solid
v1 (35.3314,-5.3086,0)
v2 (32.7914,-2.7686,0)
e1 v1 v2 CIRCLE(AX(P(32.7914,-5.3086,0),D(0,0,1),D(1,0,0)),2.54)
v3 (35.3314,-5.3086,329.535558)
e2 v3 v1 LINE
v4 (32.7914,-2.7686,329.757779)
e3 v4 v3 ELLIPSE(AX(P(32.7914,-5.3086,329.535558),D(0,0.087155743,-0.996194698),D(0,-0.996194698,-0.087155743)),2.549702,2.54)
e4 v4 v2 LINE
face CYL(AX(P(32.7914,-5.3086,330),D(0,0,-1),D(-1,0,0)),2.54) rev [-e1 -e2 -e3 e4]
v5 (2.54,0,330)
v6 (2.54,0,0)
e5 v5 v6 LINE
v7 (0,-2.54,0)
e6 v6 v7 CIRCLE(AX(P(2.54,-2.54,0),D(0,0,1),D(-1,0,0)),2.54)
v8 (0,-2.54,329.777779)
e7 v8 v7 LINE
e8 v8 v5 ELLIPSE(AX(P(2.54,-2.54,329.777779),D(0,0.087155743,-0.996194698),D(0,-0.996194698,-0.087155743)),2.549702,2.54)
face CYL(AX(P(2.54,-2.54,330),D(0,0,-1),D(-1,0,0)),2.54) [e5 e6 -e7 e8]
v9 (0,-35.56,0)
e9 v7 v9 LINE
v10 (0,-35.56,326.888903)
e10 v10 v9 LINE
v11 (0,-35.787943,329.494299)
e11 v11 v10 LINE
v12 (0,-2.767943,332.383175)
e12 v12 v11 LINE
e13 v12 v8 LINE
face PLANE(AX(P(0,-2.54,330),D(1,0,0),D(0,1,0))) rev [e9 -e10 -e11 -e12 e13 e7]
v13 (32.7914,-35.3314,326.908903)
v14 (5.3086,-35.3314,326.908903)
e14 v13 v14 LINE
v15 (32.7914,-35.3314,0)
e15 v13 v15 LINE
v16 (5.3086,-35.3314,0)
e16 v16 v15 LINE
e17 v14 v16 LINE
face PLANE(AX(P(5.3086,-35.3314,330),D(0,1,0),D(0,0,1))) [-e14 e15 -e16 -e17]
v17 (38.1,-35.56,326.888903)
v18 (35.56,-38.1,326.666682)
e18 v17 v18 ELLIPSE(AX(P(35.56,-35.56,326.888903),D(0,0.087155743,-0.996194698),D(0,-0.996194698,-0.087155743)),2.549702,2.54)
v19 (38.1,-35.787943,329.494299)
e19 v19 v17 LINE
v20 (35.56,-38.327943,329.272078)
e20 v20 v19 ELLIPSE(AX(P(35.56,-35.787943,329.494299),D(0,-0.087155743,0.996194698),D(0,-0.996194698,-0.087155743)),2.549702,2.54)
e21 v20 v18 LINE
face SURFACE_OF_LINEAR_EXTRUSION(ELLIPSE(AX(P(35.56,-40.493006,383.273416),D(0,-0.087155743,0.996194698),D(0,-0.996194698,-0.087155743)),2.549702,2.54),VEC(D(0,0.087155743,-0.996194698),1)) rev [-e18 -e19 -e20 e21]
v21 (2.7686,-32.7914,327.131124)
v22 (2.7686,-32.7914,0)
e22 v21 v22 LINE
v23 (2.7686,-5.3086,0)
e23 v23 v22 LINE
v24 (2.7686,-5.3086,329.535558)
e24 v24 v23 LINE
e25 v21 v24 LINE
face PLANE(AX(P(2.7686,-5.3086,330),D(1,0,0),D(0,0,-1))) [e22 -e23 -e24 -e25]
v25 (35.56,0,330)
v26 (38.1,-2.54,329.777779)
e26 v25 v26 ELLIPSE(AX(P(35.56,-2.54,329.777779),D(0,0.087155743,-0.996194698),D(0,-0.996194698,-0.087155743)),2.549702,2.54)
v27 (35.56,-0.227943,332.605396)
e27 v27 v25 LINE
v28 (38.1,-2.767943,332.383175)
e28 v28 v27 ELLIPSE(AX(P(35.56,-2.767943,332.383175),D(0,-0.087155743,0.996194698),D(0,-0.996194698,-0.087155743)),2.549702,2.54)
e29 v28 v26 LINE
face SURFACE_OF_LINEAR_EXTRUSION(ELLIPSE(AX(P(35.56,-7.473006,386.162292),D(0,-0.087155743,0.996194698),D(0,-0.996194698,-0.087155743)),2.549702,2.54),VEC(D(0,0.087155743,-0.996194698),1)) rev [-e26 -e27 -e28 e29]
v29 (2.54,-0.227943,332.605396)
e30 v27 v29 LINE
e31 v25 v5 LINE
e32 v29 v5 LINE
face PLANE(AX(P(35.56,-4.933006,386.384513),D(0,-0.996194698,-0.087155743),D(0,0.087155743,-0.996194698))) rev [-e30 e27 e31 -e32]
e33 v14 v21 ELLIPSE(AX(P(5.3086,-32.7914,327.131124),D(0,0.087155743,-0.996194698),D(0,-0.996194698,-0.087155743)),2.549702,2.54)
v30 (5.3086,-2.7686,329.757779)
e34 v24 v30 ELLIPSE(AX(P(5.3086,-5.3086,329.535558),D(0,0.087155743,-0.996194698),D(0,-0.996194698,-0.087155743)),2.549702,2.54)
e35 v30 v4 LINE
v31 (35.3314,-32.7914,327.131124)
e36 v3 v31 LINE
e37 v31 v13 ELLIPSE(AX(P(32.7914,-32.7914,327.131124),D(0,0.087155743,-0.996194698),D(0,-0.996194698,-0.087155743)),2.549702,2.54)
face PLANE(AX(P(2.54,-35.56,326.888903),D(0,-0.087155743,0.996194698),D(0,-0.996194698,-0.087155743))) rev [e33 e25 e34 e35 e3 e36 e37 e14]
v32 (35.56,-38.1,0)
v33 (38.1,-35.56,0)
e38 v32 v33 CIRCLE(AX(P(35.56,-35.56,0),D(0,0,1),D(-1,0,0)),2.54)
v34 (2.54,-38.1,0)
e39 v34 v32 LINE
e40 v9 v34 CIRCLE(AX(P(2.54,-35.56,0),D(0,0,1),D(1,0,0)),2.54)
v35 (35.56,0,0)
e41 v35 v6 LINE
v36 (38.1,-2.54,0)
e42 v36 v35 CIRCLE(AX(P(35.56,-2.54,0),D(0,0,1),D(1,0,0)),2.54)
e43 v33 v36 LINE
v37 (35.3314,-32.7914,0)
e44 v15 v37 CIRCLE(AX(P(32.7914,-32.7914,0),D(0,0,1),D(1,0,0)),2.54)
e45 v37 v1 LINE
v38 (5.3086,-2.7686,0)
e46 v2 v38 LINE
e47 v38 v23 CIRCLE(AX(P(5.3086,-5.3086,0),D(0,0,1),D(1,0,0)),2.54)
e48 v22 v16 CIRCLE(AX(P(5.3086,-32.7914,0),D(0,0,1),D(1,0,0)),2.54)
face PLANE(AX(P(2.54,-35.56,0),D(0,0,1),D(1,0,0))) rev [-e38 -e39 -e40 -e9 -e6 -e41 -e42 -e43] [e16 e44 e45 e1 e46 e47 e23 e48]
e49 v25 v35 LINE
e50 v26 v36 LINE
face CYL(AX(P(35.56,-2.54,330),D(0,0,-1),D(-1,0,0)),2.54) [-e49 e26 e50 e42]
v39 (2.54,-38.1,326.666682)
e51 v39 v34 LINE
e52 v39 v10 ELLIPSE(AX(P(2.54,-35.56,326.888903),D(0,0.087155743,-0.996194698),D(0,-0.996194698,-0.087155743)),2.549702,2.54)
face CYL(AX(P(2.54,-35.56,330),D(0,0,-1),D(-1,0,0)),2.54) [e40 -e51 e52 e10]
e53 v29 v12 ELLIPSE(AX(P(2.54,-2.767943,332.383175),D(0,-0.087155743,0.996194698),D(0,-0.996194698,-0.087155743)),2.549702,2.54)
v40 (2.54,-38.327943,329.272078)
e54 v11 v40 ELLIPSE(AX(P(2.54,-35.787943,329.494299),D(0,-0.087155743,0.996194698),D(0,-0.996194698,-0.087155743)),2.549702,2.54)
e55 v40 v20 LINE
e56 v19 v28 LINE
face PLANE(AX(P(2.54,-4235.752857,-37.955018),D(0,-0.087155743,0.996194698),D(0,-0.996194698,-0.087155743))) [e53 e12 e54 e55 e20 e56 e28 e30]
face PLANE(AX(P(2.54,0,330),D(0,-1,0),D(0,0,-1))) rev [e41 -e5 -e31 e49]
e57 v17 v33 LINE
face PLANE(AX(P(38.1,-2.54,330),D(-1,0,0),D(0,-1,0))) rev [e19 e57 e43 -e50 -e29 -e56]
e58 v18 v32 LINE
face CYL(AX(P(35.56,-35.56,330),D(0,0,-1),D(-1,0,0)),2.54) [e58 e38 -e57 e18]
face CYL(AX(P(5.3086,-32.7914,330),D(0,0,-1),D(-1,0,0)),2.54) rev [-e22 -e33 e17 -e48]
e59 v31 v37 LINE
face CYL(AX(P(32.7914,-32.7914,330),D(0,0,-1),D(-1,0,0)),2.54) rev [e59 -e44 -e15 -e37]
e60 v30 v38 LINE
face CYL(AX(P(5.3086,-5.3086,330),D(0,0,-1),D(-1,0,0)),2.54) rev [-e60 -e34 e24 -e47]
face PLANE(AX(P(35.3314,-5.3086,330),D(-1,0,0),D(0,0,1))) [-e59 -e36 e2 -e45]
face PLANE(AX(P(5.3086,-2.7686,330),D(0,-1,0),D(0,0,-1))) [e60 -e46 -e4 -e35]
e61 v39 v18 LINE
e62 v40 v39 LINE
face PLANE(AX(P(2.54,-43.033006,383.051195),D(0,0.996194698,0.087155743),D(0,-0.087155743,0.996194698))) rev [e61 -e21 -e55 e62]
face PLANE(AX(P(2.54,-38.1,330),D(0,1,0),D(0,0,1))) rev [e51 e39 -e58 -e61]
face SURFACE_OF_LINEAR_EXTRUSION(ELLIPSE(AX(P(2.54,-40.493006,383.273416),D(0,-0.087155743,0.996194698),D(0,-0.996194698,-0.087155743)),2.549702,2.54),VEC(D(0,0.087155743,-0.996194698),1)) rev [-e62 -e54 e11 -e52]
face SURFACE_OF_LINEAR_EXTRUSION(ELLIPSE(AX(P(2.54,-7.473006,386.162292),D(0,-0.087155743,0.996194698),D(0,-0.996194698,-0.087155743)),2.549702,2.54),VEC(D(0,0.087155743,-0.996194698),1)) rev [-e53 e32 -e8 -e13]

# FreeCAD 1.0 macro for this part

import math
import FreeCAD as App
import Part
import Sketcher
Q = App.Units.Quantity

doc = App.newDocument("Part")
body = doc.addObject("PartDesign::Body", "Body")

sketch1 = body.newObject("Sketcher::SketchObject", "Sketch")
sketch1.AttachmentSupport = (doc.getObject("XY_Plane"), [""])
sketch1.MapMode = "FlatFace"
sketch1.addGeometry([
    Part.LineSegment(App.Vector(35.56, 0, 0), App.Vector(2.54, 0, 0)),
    Part.ArcOfCircle(Part.Circle(App.Vector(2.54, -2.54, 0), App.Vector(0, 0, 1), 2.54), math.radians(90), math.radians(180)),
    Part.LineSegment(App.Vector(0, -2.54, 0), App.Vector(0, -35.56, 0)),
    Part.ArcOfCircle(Part.Circle(App.Vector(2.54, -35.56, 0), App.Vector(0, 0, 1), 2.54), math.radians(-180), math.radians(-90)),
    Part.LineSegment(App.Vector(2.54, -38.1, 0), App.Vector(35.56, -38.1, 0)),
    Part.ArcOfCircle(Part.Circle(App.Vector(35.56, -35.56, 0), App.Vector(0, 0, 1), 2.54), math.radians(-90), math.radians(0)),
    Part.LineSegment(App.Vector(38.1, -35.56, 0), App.Vector(38.1, -2.54, 0)),
    Part.ArcOfCircle(Part.Circle(App.Vector(35.56, -2.54, 0), App.Vector(0, 0, 1), 2.54), math.radians(0), math.radians(90)),
    Part.LineSegment(App.Vector(5.3086, -2.7686, 0), App.Vector(32.7914, -2.7686, 0)),
    Part.ArcOfCircle(Part.Circle(App.Vector(32.7914, -5.3086, 0), App.Vector(0, 0, 1), 2.54), math.radians(0), math.radians(90)),
    Part.LineSegment(App.Vector(35.3314, -5.3086, 0), App.Vector(35.3314, -32.7914, 0)),
    Part.ArcOfCircle(Part.Circle(App.Vector(32.7914, -32.7914, 0), App.Vector(0, 0, 1), 2.54), math.radians(-90), math.radians(0)),
    Part.LineSegment(App.Vector(32.7914, -35.3314, 0), App.Vector(5.3086, -35.3314, 0)),
    Part.ArcOfCircle(Part.Circle(App.Vector(5.3086, -32.7914, 0), App.Vector(0, 0, 1), 2.54), math.radians(-180), math.radians(-90)),
    Part.LineSegment(App.Vector(2.7686, -32.7914, 0), App.Vector(2.7686, -5.3086, 0)),
    Part.ArcOfCircle(Part.Circle(App.Vector(5.3086, -5.3086, 0), App.Vector(0, 0, 1), 2.54), math.radians(90), math.radians(180)),
], False)
sketch1.addConstraint([
    Sketcher.Constraint("Tangent", 0, 2, 1, 1),
    Sketcher.Constraint("Tangent", 1, 2, 2, 1),
    Sketcher.Constraint("Tangent", 2, 2, 3, 1),
    Sketcher.Constraint("Tangent", 3, 2, 4, 1),
    Sketcher.Constraint("Tangent", 4, 2, 5, 1),
    Sketcher.Constraint("Tangent", 5, 2, 6, 1),
    Sketcher.Constraint("Tangent", 6, 2, 7, 1),
    Sketcher.Constraint("Tangent", 7, 2, 0, 1),
    Sketcher.Constraint("Tangent", 8, 2, 9, 2),
    Sketcher.Constraint("Tangent", 9, 1, 10, 1),
    Sketcher.Constraint("Tangent", 10, 2, 11, 2),
    Sketcher.Constraint("Tangent", 11, 1, 12, 1),
    Sketcher.Constraint("Tangent", 12, 2, 13, 2),
    Sketcher.Constraint("Tangent", 13, 1, 14, 1),
    Sketcher.Constraint("Tangent", 14, 2, 15, 2),
    Sketcher.Constraint("Tangent", 15, 1, 8, 1),
    Sketcher.Constraint("Horizontal", 0),
    Sketcher.Constraint("Vertical", 2),
    Sketcher.Constraint("Horizontal", 4),
    Sketcher.Constraint("Vertical", 6),
    Sketcher.Constraint("Horizontal", 8),
    Sketcher.Constraint("Vertical", 10),
    Sketcher.Constraint("Horizontal", 12),
    Sketcher.Constraint("Vertical", 14),
    Sketcher.Constraint("Equal", 1, 3),
    Sketcher.Constraint("Equal", 3, 5),
    Sketcher.Constraint("Equal", 5, 7),
    Sketcher.Constraint("Equal", 7, 9),
    Sketcher.Constraint("Equal", 9, 11),
    Sketcher.Constraint("Equal", 11, 13),
    Sketcher.Constraint("Equal", 13, 15),
    Sketcher.Constraint("PointOnObject", 0, 2, -1),
    Sketcher.Constraint("PointOnObject", 1, 2, -2),
    Sketcher.Constraint("Equal", 4, 2),
    Sketcher.Constraint("Equal", 12, 10),
    Sketcher.Constraint("Radius", 1, Q("0.1 in")),
    Sketcher.Constraint("DistanceX", 0, 2, 0, 1, Q("1.3 in")),
    Sketcher.Constraint("DistanceX", 8, 1, 8, 2, Q("1.082 in")),
    Sketcher.Constraint("DistanceX", -1, 1, 9, 3, Q("1.291 in")),
    Sketcher.Constraint("DistanceY", 9, 3, -1, 1, Q("0.209 in")),
])
pad1 = body.newObject("PartDesign::Pad", "Pad")
pad1.Profile = sketch1
pad1.Length = 330

sketch2 = body.newObject("Sketcher::SketchObject", "Sketch001")
sketch2.AttachmentSupport = (doc.getObject("YZ_Plane"), [""])
sketch2.MapMode = "FlatFace"
sketch2.AttachmentOffset = App.Placement(App.Vector(0, 0, 1.5 * 25.4), App.Rotation())
sketch2.addGeometry([
    Part.LineSegment(App.Vector(-38.1, 326.666682, 0), App.Vector(0, 330, 0)),
    Part.LineSegment(App.Vector(0, 330, 0), App.Vector(-38.1, 330, 0)),
    Part.LineSegment(App.Vector(-38.1, 330, 0), App.Vector(-38.1, 326.666682, 0)),
], False)
sketch2.addConstraint([
    Sketcher.Constraint("Coincident", 0, 2, 1, 1),
    Sketcher.Constraint("Coincident", 1, 2, 2, 1),
    Sketcher.Constraint("Coincident", 2, 2, 0, 1),
    Sketcher.Constraint("Horizontal", 1),
    Sketcher.Constraint("Vertical", 2),
    Sketcher.Constraint("PointOnObject", 0, 2, -2),
    Sketcher.Constraint("DistanceX", 1, 2, 1, 1, Q("1.5 in")),
    Sketcher.Constraint("Angle", 0, Q("5 deg")),
    Sketcher.Constraint("DistanceY", -1, 1, 0, 2, 330.0),
])
pocket1 = body.newObject("PartDesign::Pocket", "Pocket")
pocket1.Profile = sketch2
pocket1.Type = "ThroughAll"

sketch3 = body.newObject("Sketcher::SketchObject", "Sketch002")
sketch3.Placement = App.Placement(App.Vector(0, -28.651949, 327.493279), App.Rotation(App.Vector(1, 0, 0), App.Vector(0, 0.996194698, 0.087155743), App.Vector(0, -0.087155743, 0.996194698), "ZXY"))
sketch3.addGeometry([
    Part.LineSegment(App.Vector(2.54, -9.484141, 0), App.Vector(35.56, -9.484141, 0)),
    Part.BSplineCurve([App.Vector(35.56, -9.484141, 0), App.Vector(38.1, -9.484141, 0), App.Vector(38.1, -6.934438, 0)], [3, 3], [0, 1.570796327], False, 2, [1, 0.707106781, 1], False),
    Part.LineSegment(App.Vector(38.1, -6.934438, 0), App.Vector(38.1, 26.211693, 0)),
    Part.BSplineCurve([App.Vector(38.1, 26.211693, 0), App.Vector(38.1, 28.761395, 0), App.Vector(35.56, 28.761395, 0)], [3, 3], [1.570796327, 3.141592654], False, 2, [1, 0.707106781, 1], False),
    Part.LineSegment(App.Vector(35.56, 28.761395, 0), App.Vector(2.54, 28.761395, 0)),
    Part.BSplineCurve([App.Vector(2.54, 28.761395, 0), App.Vector(0, 28.761395, 0), App.Vector(0, 26.211693, 0)], [3, 3], [3.141592654, 4.71238898], False, 2, [1, 0.707106781, 1], False),
    Part.LineSegment(App.Vector(0, 26.211693, 0), App.Vector(0, -6.934438, 0)),
    Part.BSplineCurve([App.Vector(0, -6.934438, 0), App.Vector(0, -9.484141, 0), App.Vector(2.54, -9.484141, 0)], [3, 3], [4.71238898, 6.283185307], False, 2, [1, 0.707106781, 1], False),
], False)
sketch3.addConstraint([
    Sketcher.Constraint("Block", 1),
    Sketcher.Constraint("Block", 3),
    Sketcher.Constraint("Block", 5),
    Sketcher.Constraint("Block", 7),
    Sketcher.Constraint("Coincident", 0, 2, 1, 1),
    Sketcher.Constraint("Coincident", 1, 2, 2, 1),
    Sketcher.Constraint("Coincident", 2, 2, 3, 1),
    Sketcher.Constraint("Coincident", 3, 2, 4, 1),
    Sketcher.Constraint("Coincident", 4, 2, 5, 1),
    Sketcher.Constraint("Coincident", 5, 2, 6, 1),
    Sketcher.Constraint("Coincident", 6, 2, 7, 1),
    Sketcher.Constraint("Coincident", 7, 2, 0, 1),
])
pad2 = body.newObject("PartDesign::Pad", "Pad001")
pad2.Profile = sketch3
pad2.Length = 2.615348

doc.recompute()
